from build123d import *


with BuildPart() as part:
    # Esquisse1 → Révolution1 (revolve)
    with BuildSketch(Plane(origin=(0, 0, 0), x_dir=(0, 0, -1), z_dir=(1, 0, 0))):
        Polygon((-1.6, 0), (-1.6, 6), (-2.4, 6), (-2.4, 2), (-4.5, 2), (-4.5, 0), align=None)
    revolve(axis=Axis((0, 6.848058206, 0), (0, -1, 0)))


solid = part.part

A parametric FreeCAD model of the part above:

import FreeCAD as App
import Part
import Sketcher
from FreeCAD import Vector

doc = App.newDocument("Part")
body = doc.addObject("PartDesign::Body", "Body")

sketch1 = body.newObject("Sketcher::SketchObject", "Sketch")
sketch1.AttachmentSupport = (doc.getObject("YZ_Plane"), [""])
sketch1.MapMode = "FlatFace"
sketch1.addGeometry([
    Part.LineSegment(Vector(0, 1.6, 0), Vector(6, 1.6, 0)),
    Part.LineSegment(Vector(6, 1.6, 0), Vector(6, 2.4, 0)),
    Part.LineSegment(Vector(6, 2.4, 0), Vector(2, 2.4, 0)),
    Part.LineSegment(Vector(2, 2.4, 0), Vector(2, 4.5, 0)),
    Part.LineSegment(Vector(2, 4.5, 0), Vector(0, 4.5, 0)),
    Part.LineSegment(Vector(0, 4.5, 0), Vector(0, 1.6, 0)),
], False)
sketch1.addConstraint([
    Sketcher.Constraint("Coincident", 0, 2, 1, 1),
    Sketcher.Constraint("Coincident", 1, 2, 2, 1),
    Sketcher.Constraint("Coincident", 2, 2, 3, 1),
    Sketcher.Constraint("Coincident", 3, 2, 4, 1),
    Sketcher.Constraint("Coincident", 4, 2, 5, 1),
    Sketcher.Constraint("Coincident", 5, 2, 0, 1),
    Sketcher.Constraint("Horizontal", 0),
    Sketcher.Constraint("Vertical", 1),
    Sketcher.Constraint("Horizontal", 2),
    Sketcher.Constraint("Vertical", 3),
    Sketcher.Constraint("Horizontal", 4),
    Sketcher.Constraint("Vertical", 5),
    Sketcher.Constraint("PointOnObject", 4, 2, -2),
    Sketcher.Constraint("DistanceX", 0, 1, 0, 2, 6.0),
    Sketcher.Constraint("DistanceX", 2, 2, 2, 1, 4.0),
    Sketcher.Constraint("DistanceY", 1, 1, 1, 2, 0.8),
    Sketcher.Constraint("DistanceY", 3, 1, 3, 2, 2.1),
    Sketcher.Constraint("DistanceY", -1, 1, 0, 2, 1.6),
])
revolution = body.newObject("PartDesign::Revolution", "Revolution")
revolution.Profile = sketch1
revolution.ReferenceAxis = (sketch1, ["H_Axis"])
revolution.Angle = 360

doc.recompute()
